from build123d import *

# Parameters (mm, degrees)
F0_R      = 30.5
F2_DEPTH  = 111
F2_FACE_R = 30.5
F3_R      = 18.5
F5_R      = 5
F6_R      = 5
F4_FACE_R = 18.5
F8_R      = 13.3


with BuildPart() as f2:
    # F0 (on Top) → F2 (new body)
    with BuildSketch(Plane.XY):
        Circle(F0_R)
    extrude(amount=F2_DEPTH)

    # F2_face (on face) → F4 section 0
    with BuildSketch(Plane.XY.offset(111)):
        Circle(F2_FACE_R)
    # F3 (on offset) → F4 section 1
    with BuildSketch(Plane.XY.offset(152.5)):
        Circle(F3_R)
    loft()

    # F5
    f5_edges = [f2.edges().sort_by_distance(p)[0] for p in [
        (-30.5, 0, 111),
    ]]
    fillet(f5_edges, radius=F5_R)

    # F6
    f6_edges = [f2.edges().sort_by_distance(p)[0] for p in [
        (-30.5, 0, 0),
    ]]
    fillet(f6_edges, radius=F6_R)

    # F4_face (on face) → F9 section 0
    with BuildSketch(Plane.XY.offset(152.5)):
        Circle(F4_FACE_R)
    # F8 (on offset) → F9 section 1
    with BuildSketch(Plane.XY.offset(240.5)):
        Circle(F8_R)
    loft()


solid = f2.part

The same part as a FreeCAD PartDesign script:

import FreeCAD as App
import Part
import Sketcher
from FreeCAD import Vector
Q = App.Units.Quantity


def edges_at(feature, points):
    """Names of the edges that pass closest to the given points."""
    edges = feature.Shape.Edges
    near = lambda p: min(range(len(edges)), key=lambda i: edges[i].distToShape(Part.Vertex(*p))[0])
    return sorted({f"Edge{near(p) + 1}" for p in points})

doc = App.newDocument("Part")
body = doc.addObject("PartDesign::Body", "Body")

# Sketch on XY plane
sketch1 = body.newObject("Sketcher::SketchObject", "Sketch")
sketch1.AttachmentSupport = (doc.getObject("XY_Plane"), [""])
sketch1.MapMode = "FlatFace"
sketch1.addGeometry(Part.Circle(Vector(0, 0, 0), Vector(0, 0, 1), 30.5), False)
sketch1.addConstraint(Sketcher.Constraint("Coincident", 0, 3, -1, 1))
sketch1.addConstraint(Sketcher.Constraint("Diameter", 0, Q("61 mm")))
pad1 = body.newObject("PartDesign::Pad", "Pad")
pad1.Profile = sketch1
pad1.Length = 111

# Sketch on XY plane
sketch2 = body.newObject("Sketcher::SketchObject", "Sketch001")
sketch2.AttachmentSupport = (doc.getObject("XY_Plane"), [""])
sketch2.MapMode = "FlatFace"
sketch2.AttachmentOffset = App.Placement(Vector(0, 0, 111), App.Rotation())
sketch2.addGeometry(Part.Circle(Vector(0, 0, 0), Vector(0, 0, 1), 30.5), False)
sketch2.addConstraint(Sketcher.Constraint("Coincident", 0, 3, -1, 1))
sketch2.addConstraint(Sketcher.Constraint("Diameter", 0, Q("61 mm")))

# Sketch on XY plane
sketch3 = body.newObject("Sketcher::SketchObject", "Sketch002")
sketch3.AttachmentSupport = (doc.getObject("XY_Plane"), [""])
sketch3.MapMode = "FlatFace"
sketch3.AttachmentOffset = App.Placement(Vector(0, 0, 152.5), App.Rotation())
sketch3.addGeometry(Part.Circle(Vector(0, 0, 0), Vector(0, 0, 1), 18.5), False)
sketch3.addConstraint(Sketcher.Constraint("Coincident", 0, 3, -1, 1))
sketch3.addConstraint(Sketcher.Constraint("Diameter", 0, Q("37 mm")))

additiveloft = body.newObject("PartDesign::AdditiveLoft", "AdditiveLoft")
additiveloft.Profile = sketch2
additiveloft.Sections = [sketch3]
doc.recompute()

fillet = body.newObject("PartDesign::Fillet", "Fillet")
fillet.Base = (additiveloft, edges_at(additiveloft, [(-30.5, 0, 111)]))
fillet.Radius = 5
doc.recompute()

fillet2 = body.newObject("PartDesign::Fillet", "Fillet001")
fillet2.Base = (fillet, edges_at(fillet, [(-30.5, 0, 0)]))
fillet2.Radius = 5

# Sketch on XY plane
sketch4 = body.newObject("Sketcher::SketchObject", "Sketch003")
sketch4.AttachmentSupport = (doc.getObject("XY_Plane"), [""])
sketch4.MapMode = "FlatFace"
sketch4.AttachmentOffset = App.Placement(Vector(0, 0, 152.5), App.Rotation())
sketch4.addGeometry(Part.Circle(Vector(0, 0, 0), Vector(0, 0, 1), 18.5), False)
sketch4.addConstraint(Sketcher.Constraint("Coincident", 0, 3, -1, 1))
sketch4.addConstraint(Sketcher.Constraint("Diameter", 0, Q("37 mm")))

# Sketch on XY plane
sketch5 = body.newObject("Sketcher::SketchObject", "Sketch004")
sketch5.AttachmentSupport = (doc.getObject("XY_Plane"), [""])
sketch5.MapMode = "FlatFace"
sketch5.AttachmentOffset = App.Placement(Vector(0, 0, 240.5), App.Rotation())
sketch5.addGeometry(Part.Circle(Vector(0, 0, 0), Vector(0, 0, 1), 13.3), False)
sketch5.addConstraint(Sketcher.Constraint("Coincident", 0, 3, -1, 1))
sketch5.addConstraint(Sketcher.Constraint("Diameter", 0, Q("26.6 mm")))

additiveloft2 = body.newObject("PartDesign::AdditiveLoft", "AdditiveLoft001")
additiveloft2.Profile = sketch4
additiveloft2.Sections = [sketch5]

doc.recompute()
